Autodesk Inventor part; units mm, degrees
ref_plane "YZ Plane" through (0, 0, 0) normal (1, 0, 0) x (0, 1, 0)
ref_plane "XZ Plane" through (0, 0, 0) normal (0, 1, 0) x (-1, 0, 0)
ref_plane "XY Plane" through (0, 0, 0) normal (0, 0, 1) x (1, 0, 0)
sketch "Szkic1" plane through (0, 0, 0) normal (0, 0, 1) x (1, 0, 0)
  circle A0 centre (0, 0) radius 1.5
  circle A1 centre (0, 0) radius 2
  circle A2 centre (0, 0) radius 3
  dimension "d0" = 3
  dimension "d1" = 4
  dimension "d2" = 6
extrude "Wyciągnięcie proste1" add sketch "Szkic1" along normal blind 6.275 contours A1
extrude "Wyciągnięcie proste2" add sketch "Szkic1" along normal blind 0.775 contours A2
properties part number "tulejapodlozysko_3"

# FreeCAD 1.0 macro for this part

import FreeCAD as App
import Part
import Sketcher
from FreeCAD import Vector

doc = App.newDocument("Part")
body = doc.addObject("PartDesign::Body", "Body")

# Sketch on XY plane
sketch1 = body.newObject("Sketcher::SketchObject", "Sketch")
sketch1.AttachmentSupport = (doc.getObject("XY_Plane"), [""])
sketch1.MapMode = "FlatFace"
sketch1.addGeometry(Part.Circle(Vector(0, 0, 0), Vector(0, 0, 1), 2), False)
sketch1.addGeometry(Part.Circle(Vector(0, 0, 0), Vector(0, 0, 1), 1.5), False)
sketch1.addConstraint(Sketcher.Constraint("Coincident", 0, 3, -1, 1))
sketch1.addConstraint(Sketcher.Constraint("Coincident", 1, 3, -1, 1))
sketch1.addConstraint(Sketcher.Constraint("Diameter", 0, 4.0))
sketch1.addConstraint(Sketcher.Constraint("Diameter", 1, 3.0))
pad1 = body.newObject("PartDesign::Pad", "Pad")
pad1.Profile = sketch1
pad1.Length = 6.275

# Sketch on XY plane
sketch2 = body.newObject("Sketcher::SketchObject", "Sketch001")
sketch2.AttachmentSupport = (doc.getObject("XY_Plane"), [""])
sketch2.MapMode = "FlatFace"
sketch2.addGeometry(Part.Circle(Vector(0, 0, 0), Vector(0, 0, 1), 3), False)
sketch2.addGeometry(Part.Circle(Vector(0, 0, 0), Vector(0, 0, 1), 2), False)
sketch2.addConstraint(Sketcher.Constraint("Coincident", 0, 3, -1, 1))
sketch2.addConstraint(Sketcher.Constraint("Coincident", 1, 3, -1, 1))
sketch2.addConstraint(Sketcher.Constraint("Diameter", 0, 6.0))
sketch2.addConstraint(Sketcher.Constraint("Diameter", 1, 4.0))
pad2 = body.newObject("PartDesign::Pad", "Pad001")
pad2.Profile = sketch2
pad2.Length = 0.775

doc.recompute()
